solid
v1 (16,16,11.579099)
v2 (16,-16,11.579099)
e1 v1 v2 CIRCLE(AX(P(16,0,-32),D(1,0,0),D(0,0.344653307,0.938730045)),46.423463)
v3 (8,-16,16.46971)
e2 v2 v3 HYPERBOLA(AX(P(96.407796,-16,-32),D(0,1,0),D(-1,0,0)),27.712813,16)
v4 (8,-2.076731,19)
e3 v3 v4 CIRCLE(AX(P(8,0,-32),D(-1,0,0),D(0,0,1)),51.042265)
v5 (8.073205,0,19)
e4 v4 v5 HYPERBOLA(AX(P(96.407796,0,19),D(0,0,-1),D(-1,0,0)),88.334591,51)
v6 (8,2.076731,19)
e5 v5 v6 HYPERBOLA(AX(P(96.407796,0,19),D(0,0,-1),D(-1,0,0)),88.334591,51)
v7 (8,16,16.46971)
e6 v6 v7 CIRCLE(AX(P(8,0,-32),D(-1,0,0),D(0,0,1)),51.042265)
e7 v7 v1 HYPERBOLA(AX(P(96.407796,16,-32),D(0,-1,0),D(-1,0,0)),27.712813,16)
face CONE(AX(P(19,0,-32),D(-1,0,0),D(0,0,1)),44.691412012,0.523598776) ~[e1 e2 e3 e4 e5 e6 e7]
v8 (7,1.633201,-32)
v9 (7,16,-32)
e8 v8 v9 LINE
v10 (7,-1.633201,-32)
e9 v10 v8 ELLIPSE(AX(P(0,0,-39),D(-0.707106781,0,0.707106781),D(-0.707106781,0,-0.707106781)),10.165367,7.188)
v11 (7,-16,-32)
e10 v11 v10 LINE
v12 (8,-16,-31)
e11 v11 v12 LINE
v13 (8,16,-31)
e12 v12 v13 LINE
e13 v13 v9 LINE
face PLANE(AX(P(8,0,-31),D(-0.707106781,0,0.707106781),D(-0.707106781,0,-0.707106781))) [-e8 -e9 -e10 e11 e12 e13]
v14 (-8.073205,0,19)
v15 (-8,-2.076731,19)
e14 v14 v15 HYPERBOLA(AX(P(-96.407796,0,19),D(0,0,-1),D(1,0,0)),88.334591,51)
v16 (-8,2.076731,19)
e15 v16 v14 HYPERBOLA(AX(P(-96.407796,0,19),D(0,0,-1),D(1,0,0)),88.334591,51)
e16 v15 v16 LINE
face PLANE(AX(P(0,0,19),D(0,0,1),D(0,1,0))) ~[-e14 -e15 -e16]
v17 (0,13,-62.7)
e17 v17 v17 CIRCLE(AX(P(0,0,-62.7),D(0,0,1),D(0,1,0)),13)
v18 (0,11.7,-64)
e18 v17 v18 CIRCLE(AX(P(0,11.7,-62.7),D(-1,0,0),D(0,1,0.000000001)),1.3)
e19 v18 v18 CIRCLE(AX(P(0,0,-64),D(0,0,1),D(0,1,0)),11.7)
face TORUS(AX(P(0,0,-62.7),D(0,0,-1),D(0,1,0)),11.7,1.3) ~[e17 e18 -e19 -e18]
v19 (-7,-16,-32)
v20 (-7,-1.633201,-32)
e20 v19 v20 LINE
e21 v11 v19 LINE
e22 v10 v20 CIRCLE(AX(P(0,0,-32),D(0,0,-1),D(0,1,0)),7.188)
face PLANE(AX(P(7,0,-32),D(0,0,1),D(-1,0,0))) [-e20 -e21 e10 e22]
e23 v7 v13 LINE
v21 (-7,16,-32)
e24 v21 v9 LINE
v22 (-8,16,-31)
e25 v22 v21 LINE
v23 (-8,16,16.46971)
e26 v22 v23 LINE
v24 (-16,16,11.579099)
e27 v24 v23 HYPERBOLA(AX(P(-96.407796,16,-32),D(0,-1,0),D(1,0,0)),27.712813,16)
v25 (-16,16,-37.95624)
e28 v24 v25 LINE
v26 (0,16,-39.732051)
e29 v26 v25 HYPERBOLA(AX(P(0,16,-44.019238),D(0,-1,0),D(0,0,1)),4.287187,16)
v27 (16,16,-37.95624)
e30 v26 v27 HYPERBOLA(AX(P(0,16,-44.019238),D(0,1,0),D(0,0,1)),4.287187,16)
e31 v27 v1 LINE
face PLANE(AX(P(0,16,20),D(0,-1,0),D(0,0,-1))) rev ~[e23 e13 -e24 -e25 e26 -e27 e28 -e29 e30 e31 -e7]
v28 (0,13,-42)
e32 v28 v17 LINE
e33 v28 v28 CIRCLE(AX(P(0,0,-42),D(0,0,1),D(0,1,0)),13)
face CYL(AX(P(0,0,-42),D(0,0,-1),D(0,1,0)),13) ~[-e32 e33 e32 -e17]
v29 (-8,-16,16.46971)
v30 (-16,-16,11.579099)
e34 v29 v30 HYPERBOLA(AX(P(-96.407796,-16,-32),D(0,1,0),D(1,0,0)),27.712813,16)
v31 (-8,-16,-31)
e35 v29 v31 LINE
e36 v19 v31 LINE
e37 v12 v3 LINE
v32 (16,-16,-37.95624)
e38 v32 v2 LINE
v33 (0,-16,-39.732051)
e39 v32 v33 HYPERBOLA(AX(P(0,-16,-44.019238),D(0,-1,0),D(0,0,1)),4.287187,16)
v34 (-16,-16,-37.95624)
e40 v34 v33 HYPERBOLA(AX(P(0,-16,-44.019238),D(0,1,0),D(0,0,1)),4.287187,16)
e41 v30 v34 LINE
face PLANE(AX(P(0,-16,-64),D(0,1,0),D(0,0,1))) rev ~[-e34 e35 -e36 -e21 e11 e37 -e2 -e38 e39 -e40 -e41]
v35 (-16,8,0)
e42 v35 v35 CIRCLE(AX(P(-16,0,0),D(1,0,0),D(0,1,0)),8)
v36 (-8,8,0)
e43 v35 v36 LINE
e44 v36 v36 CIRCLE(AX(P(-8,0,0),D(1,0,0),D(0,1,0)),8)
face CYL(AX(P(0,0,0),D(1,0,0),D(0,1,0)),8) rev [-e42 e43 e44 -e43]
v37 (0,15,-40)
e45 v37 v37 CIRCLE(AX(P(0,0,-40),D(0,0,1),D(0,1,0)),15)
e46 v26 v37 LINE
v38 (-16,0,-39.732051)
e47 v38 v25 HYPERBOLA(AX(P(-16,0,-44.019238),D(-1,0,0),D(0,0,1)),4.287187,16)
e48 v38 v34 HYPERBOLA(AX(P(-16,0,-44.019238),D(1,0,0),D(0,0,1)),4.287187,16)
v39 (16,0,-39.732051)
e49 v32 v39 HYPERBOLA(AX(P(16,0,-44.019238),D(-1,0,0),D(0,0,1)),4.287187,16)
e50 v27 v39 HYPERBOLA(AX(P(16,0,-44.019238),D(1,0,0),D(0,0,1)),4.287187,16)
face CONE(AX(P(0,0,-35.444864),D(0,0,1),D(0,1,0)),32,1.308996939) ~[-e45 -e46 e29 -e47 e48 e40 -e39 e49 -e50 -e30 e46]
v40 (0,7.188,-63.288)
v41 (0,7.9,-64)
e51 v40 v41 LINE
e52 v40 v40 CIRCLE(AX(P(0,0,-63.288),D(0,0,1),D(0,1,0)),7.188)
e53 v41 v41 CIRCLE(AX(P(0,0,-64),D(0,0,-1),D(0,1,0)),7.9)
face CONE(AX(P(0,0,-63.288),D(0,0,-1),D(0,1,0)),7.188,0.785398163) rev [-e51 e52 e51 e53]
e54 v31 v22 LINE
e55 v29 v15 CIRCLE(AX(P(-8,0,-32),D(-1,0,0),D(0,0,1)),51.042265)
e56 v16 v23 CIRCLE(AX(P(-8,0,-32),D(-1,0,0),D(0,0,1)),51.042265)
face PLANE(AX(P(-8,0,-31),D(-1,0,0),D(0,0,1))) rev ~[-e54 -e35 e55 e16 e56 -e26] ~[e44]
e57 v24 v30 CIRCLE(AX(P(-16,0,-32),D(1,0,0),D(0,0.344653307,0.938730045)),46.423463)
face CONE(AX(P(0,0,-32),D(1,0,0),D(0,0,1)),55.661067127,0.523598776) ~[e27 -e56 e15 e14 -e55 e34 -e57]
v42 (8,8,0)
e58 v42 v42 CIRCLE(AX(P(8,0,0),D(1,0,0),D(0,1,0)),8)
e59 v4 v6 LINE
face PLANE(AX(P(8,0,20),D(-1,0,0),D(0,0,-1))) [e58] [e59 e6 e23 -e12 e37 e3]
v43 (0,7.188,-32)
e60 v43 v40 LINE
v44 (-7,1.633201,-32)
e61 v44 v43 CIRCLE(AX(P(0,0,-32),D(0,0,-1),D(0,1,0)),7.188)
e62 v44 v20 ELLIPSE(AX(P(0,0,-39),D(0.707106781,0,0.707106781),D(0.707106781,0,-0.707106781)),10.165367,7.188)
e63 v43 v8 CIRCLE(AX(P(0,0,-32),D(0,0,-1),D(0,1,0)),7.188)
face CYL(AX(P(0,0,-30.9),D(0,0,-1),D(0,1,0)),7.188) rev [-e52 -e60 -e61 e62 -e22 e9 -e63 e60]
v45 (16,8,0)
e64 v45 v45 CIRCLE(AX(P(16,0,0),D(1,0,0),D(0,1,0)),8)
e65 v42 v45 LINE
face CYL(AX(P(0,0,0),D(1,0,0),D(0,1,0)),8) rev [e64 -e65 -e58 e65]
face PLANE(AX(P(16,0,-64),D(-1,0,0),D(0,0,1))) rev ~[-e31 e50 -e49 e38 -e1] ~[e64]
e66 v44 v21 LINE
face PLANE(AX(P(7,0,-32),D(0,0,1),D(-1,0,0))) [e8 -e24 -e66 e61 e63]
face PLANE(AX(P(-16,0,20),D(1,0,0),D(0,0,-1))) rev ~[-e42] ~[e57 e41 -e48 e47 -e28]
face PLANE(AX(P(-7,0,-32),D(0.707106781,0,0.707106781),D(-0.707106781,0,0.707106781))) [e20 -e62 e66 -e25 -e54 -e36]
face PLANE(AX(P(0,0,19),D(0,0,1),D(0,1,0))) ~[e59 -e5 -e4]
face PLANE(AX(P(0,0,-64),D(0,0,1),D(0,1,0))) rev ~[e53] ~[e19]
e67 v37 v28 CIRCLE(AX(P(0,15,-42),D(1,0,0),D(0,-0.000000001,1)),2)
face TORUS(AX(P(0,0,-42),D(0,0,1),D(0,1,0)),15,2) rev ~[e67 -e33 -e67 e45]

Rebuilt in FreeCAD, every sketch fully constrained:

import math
import FreeCAD as App
import Part
import Sketcher
Q = App.Units.Quantity

doc = App.newDocument("Part")
body = doc.addObject("PartDesign::Body", "Body")

sketch1 = body.newObject("Sketcher::SketchObject", "Sketch")
sketch1.AttachmentSupport = (doc.getObject("YZ_Plane"), [""])
sketch1.MapMode = "FlatFace"
sketch1.addGeometry(Part.LineSegment(App.Vector(32, 19, 0), App.Vector(0, 19, 0)), False)
sketch1.addGeometry(Part.LineSegment(App.Vector(0, 19, 0), App.Vector(0, -64, 0)), False)
sketch1.addGeometry(Part.LineSegment(App.Vector(0, -64, 0), App.Vector(11.7, -64, 0)), False)
sketch1.addGeometry(Part.ArcOfCircle(Part.Circle(App.Vector(11.7, -62.7, 0), App.Vector(0, 0, 1), 1.3), math.radians(-90), math.radians(0)), False)
sketch1.addGeometry(Part.LineSegment(App.Vector(13, -62.7, 0), App.Vector(13, -42, 0)), False)
sketch1.addGeometry(Part.ArcOfCircle(Part.Circle(App.Vector(15, -42, 0), App.Vector(0, 0, 1), 2), math.radians(90), math.radians(180)), False)
sketch1.addGeometry(Part.LineSegment(App.Vector(15, -40, 0), App.Vector(32, -35.444864, 0)), False)
sketch1.addGeometry(Part.LineSegment(App.Vector(32, -35.444864, 0), App.Vector(32, 19, 0)), False)
sketch1.addConstraint(Sketcher.Constraint("Coincident", 0, 2, 1, 1))
sketch1.addConstraint(Sketcher.Constraint("Coincident", 1, 2, 2, 1))
sketch1.addConstraint(Sketcher.Constraint("Tangent", 2, 2, 3, 1))
sketch1.addConstraint(Sketcher.Constraint("Tangent", 3, 2, 4, 1))
sketch1.addConstraint(Sketcher.Constraint("Tangent", 4, 2, 5, 2))
sketch1.addConstraint(Sketcher.Constraint("Coincident", 5, 1, 6, 1))
sketch1.addConstraint(Sketcher.Constraint("Coincident", 6, 2, 7, 1))
sketch1.addConstraint(Sketcher.Constraint("Coincident", 7, 2, 0, 1))
sketch1.addConstraint(Sketcher.Constraint("Horizontal", 0))
sketch1.addConstraint(Sketcher.Constraint("Vertical", 1))
sketch1.addConstraint(Sketcher.Constraint("Horizontal", 2))
sketch1.addConstraint(Sketcher.Constraint("Vertical", 4))
sketch1.addConstraint(Sketcher.Constraint("Vertical", 7))
sketch1.addConstraint(Sketcher.Constraint("PointOnObject", 0, 2, -2))
sketch1.addConstraint(Sketcher.Constraint("Radius", 5, 2.0))
sketch1.addConstraint(Sketcher.Constraint("Radius", 3, 1.3))
sketch1.addConstraint(Sketcher.Constraint("DistanceX", 0, 2, 0, 1, 32.0))
sketch1.addConstraint(Sketcher.Constraint("DistanceY", 1, 2, 1, 1, 83.0))
sketch1.addConstraint(Sketcher.Constraint("Angle", 6, Q("15 deg")))
sketch1.addConstraint(Sketcher.Constraint("DistanceX", 2, 1, 2, 2, 11.7))
sketch1.addConstraint(Sketcher.Constraint("DistanceY", 4, 1, 4, 2, 20.7))
sketch1.addConstraint(Sketcher.Constraint("DistanceY", 5, 3, -1, 1, 42.0))
sketch1.addConstraint(Sketcher.Constraint("DistanceX", -1, 1, 5, 1, 15.0))
revolution = body.newObject("PartDesign::Revolution", "Revolution")
revolution.Profile = sketch1
revolution.ReferenceAxis = (sketch1, ["V_Axis"])
revolution.Angle = 360

sketch2 = body.newObject("Sketcher::SketchObject", "Sketch001")
sketch2.AttachmentSupport = (doc.getObject("XZ_Plane"), [""])
sketch2.MapMode = "FlatFace"
sketch2.addGeometry(Part.LineSegment(App.Vector(-8, -31, 0), App.Vector(-8, 20, 0)), False)
sketch2.addGeometry(Part.LineSegment(App.Vector(-8, 20, 0), App.Vector(8, 20, 0)), False)
sketch2.addGeometry(Part.LineSegment(App.Vector(8, 20, 0), App.Vector(8, -31, 0)), False)
sketch2.addGeometry(Part.LineSegment(App.Vector(8, -31, 0), App.Vector(7, -32, 0)), False)
sketch2.addGeometry(Part.LineSegment(App.Vector(7, -32, 0), App.Vector(-7, -32, 0)), False)
sketch2.addGeometry(Part.LineSegment(App.Vector(-7, -32, 0), App.Vector(-8, -31, 0)), False)
sketch2.addConstraint(Sketcher.Constraint("Coincident", 0, 2, 1, 1))
sketch2.addConstraint(Sketcher.Constraint("Coincident", 1, 2, 2, 1))
sketch2.addConstraint(Sketcher.Constraint("Coincident", 2, 2, 3, 1))
sketch2.addConstraint(Sketcher.Constraint("Coincident", 3, 2, 4, 1))
sketch2.addConstraint(Sketcher.Constraint("Coincident", 4, 2, 5, 1))
sketch2.addConstraint(Sketcher.Constraint("Coincident", 5, 2, 0, 1))
sketch2.addConstraint(Sketcher.Constraint("Vertical", 0))
sketch2.addConstraint(Sketcher.Constraint("Horizontal", 1))
sketch2.addConstraint(Sketcher.Constraint("Vertical", 2))
sketch2.addConstraint(Sketcher.Constraint("Horizontal", 4))
sketch2.addConstraint(Sketcher.Constraint("Symmetric", 2, 2, 5, 2, -2))
sketch2.addConstraint(Sketcher.Constraint("Perpendicular", 3, 5))
sketch2.addConstraint(Sketcher.Constraint("Equal", 3, 5))
sketch2.addConstraint(Sketcher.Constraint("DistanceX", 1, 1, 1, 2, 16.0))
sketch2.addConstraint(Sketcher.Constraint("DistanceX", 4, 2, 4, 1, 14.0))
sketch2.addConstraint(Sketcher.Constraint("DistanceY", 0, 1, 0, 2, 51.0))
sketch2.addConstraint(Sketcher.Constraint("DistanceY", -1, 1, 0, 2, 20.0))
pocket1 = body.newObject("PartDesign::Pocket", "Pocket")
pocket1.Profile = sketch2
pocket1.Type = "ThroughAll"
pocket1.Midplane = True

sketch3 = body.newObject("Sketcher::SketchObject", "Sketch002")
sketch3.AttachmentSupport = (doc.getObject("YZ_Plane"), [""])
sketch3.MapMode = "FlatFace"
sketch3.addGeometry(Part.LineSegment(App.Vector(-48, 52, 0), App.Vector(-48, -64, 0)), False)
sketch3.addGeometry(Part.LineSegment(App.Vector(-48, -64, 0), App.Vector(-16, -64, 0)), False)
sketch3.addGeometry(Part.LineSegment(App.Vector(-16, -64, 0), App.Vector(-16, 20, 0)), False)
sketch3.addGeometry(Part.LineSegment(App.Vector(-16, 20, 0), App.Vector(16, 20, 0)), False)
sketch3.addGeometry(Part.LineSegment(App.Vector(16, 20, 0), App.Vector(16, -64, 0)), False)
sketch3.addGeometry(Part.LineSegment(App.Vector(16, -64, 0), App.Vector(48, -64, 0)), False)
sketch3.addGeometry(Part.LineSegment(App.Vector(48, -64, 0), App.Vector(48, 52, 0)), False)
sketch3.addGeometry(Part.LineSegment(App.Vector(48, 52, 0), App.Vector(-48, 52, 0)), False)
sketch3.addConstraint(Sketcher.Constraint("Coincident", 0, 2, 1, 1))
sketch3.addConstraint(Sketcher.Constraint("Coincident", 1, 2, 2, 1))
sketch3.addConstraint(Sketcher.Constraint("Coincident", 2, 2, 3, 1))
sketch3.addConstraint(Sketcher.Constraint("Coincident", 3, 2, 4, 1))
sketch3.addConstraint(Sketcher.Constraint("Coincident", 4, 2, 5, 1))
sketch3.addConstraint(Sketcher.Constraint("Coincident", 5, 2, 6, 1))
sketch3.addConstraint(Sketcher.Constraint("Coincident", 6, 2, 7, 1))
sketch3.addConstraint(Sketcher.Constraint("Coincident", 7, 2, 0, 1))
sketch3.addConstraint(Sketcher.Constraint("Vertical", 0))
sketch3.addConstraint(Sketcher.Constraint("Horizontal", 1))
sketch3.addConstraint(Sketcher.Constraint("Vertical", 2))
sketch3.addConstraint(Sketcher.Constraint("Horizontal", 3))
sketch3.addConstraint(Sketcher.Constraint("Vertical", 4))
sketch3.addConstraint(Sketcher.Constraint("Horizontal", 5))
sketch3.addConstraint(Sketcher.Constraint("Vertical", 6))
sketch3.addConstraint(Sketcher.Constraint("Horizontal", 7))
sketch3.addConstraint(Sketcher.Constraint("Symmetric", 1, 2, 4, 2, -2))
sketch3.addConstraint(Sketcher.Constraint("Equal", 1, 3))
sketch3.addConstraint(Sketcher.Constraint("Equal", 3, 5))
sketch3.addConstraint(Sketcher.Constraint("DistanceX", 1, 1, 1, 2, 32.0))
sketch3.addConstraint(Sketcher.Constraint("DistanceY", 0, 2, 0, 1, 116.0))
sketch3.addConstraint(Sketcher.Constraint("DistanceY", 2, 1, 2, 2, 84.0))
sketch3.addConstraint(Sketcher.Constraint("DistanceY", 0, 2, -1, 1, 64.0))
pocket2 = body.newObject("PartDesign::Pocket", "Pocket001")
pocket2.Profile = sketch3
pocket2.Type = "ThroughAll"
pocket2.Midplane = True

sketch4 = body.newObject("Sketcher::SketchObject", "Sketch003")
sketch4.AttachmentSupport = (doc.getObject("XZ_Plane"), [""])
sketch4.MapMode = "FlatFace"
sketch4.addGeometry(Part.LineSegment(App.Vector(-48, 52, 0), App.Vector(48, 52, 0)), False)
sketch4.addGeometry(Part.LineSegment(App.Vector(48, 52, 0), App.Vector(48, -64, 0)), False)
sketch4.addGeometry(Part.LineSegment(App.Vector(48, -64, 0), App.Vector(16, -64, 0)), False)
sketch4.addGeometry(Part.LineSegment(App.Vector(16, -64, 0), App.Vector(16, 20, 0)), False)
sketch4.addGeometry(Part.LineSegment(App.Vector(16, 20, 0), App.Vector(-16, 20, 0)), False)
sketch4.addGeometry(Part.LineSegment(App.Vector(-16, 20, 0), App.Vector(-16, -64, 0)), False)
sketch4.addGeometry(Part.LineSegment(App.Vector(-16, -64, 0), App.Vector(-48, -64, 0)), False)
sketch4.addGeometry(Part.LineSegment(App.Vector(-48, -64, 0), App.Vector(-48, 52, 0)), False)
sketch4.addConstraint(Sketcher.Constraint("Coincident", 0, 2, 1, 1))
sketch4.addConstraint(Sketcher.Constraint("Coincident", 1, 2, 2, 1))
sketch4.addConstraint(Sketcher.Constraint("Coincident", 2, 2, 3, 1))
sketch4.addConstraint(Sketcher.Constraint("Coincident", 3, 2, 4, 1))
sketch4.addConstraint(Sketcher.Constraint("Coincident", 4, 2, 5, 1))
sketch4.addConstraint(Sketcher.Constraint("Coincident", 5, 2, 6, 1))
sketch4.addConstraint(Sketcher.Constraint("Coincident", 6, 2, 7, 1))
sketch4.addConstraint(Sketcher.Constraint("Coincident", 7, 2, 0, 1))
sketch4.addConstraint(Sketcher.Constraint("Horizontal", 0))
sketch4.addConstraint(Sketcher.Constraint("Vertical", 1))
sketch4.addConstraint(Sketcher.Constraint("Horizontal", 2))
sketch4.addConstraint(Sketcher.Constraint("Vertical", 3))
sketch4.addConstraint(Sketcher.Constraint("Horizontal", 4))
sketch4.addConstraint(Sketcher.Constraint("Vertical", 5))
sketch4.addConstraint(Sketcher.Constraint("Horizontal", 6))
sketch4.addConstraint(Sketcher.Constraint("Vertical", 7))
sketch4.addConstraint(Sketcher.Constraint("Symmetric", 2, 2, 5, 2, -2))
sketch4.addConstraint(Sketcher.Constraint("Equal", 2, 4))
sketch4.addConstraint(Sketcher.Constraint("Equal", 4, 6))
sketch4.addConstraint(Sketcher.Constraint("DistanceX", 0, 1, 0, 2, 96.0))
sketch4.addConstraint(Sketcher.Constraint("DistanceY", 1, 2, 1, 1, 116.0))
sketch4.addConstraint(Sketcher.Constraint("DistanceY", 3, 1, 3, 2, 84.0))
sketch4.addConstraint(Sketcher.Constraint("DistanceY", -1, 1, 0, 2, 52.0))
pocket3 = body.newObject("PartDesign::Pocket", "Pocket002")
pocket3.Profile = sketch4
pocket3.Type = "ThroughAll"
pocket3.Midplane = True

sketch5 = body.newObject("Sketcher::SketchObject", "Sketch004")
sketch5.AttachmentSupport = (doc.getObject("XY_Plane"), [""])
sketch5.MapMode = "FlatFace"
sketch5.addGeometry(Part.LineSegment(App.Vector(-19.75, 8, 0), App.Vector(-19.75, 0, 0)), False)
sketch5.addGeometry(Part.LineSegment(App.Vector(-19.75, 0, 0), App.Vector(19.75, 0, 0)), False)
sketch5.addGeometry(Part.LineSegment(App.Vector(19.75, 0, 0), App.Vector(19.75, 8, 0)), False)
sketch5.addGeometry(Part.LineSegment(App.Vector(19.75, 8, 0), App.Vector(-19.75, 8, 0)), False)
sketch5.addConstraint(Sketcher.Constraint("Coincident", 0, 2, 1, 1))
sketch5.addConstraint(Sketcher.Constraint("Coincident", 1, 2, 2, 1))
sketch5.addConstraint(Sketcher.Constraint("Coincident", 2, 2, 3, 1))
sketch5.addConstraint(Sketcher.Constraint("Coincident", 3, 2, 0, 1))
sketch5.addConstraint(Sketcher.Constraint("Vertical", 0))
sketch5.addConstraint(Sketcher.Constraint("Horizontal", 1))
sketch5.addConstraint(Sketcher.Constraint("Vertical", 2))
sketch5.addConstraint(Sketcher.Constraint("Horizontal", 3))
sketch5.addConstraint(Sketcher.Constraint("Symmetric", 0, 2, 1, 2, -1, 1))
sketch5.addConstraint(Sketcher.Constraint("DistanceY", 0, 2, 0, 1, 8.0))
sketch5.addConstraint(Sketcher.Constraint("DistanceX", 1, 1, 1, 2, 39.5))
groove = body.newObject("PartDesign::Groove", "Groove")
groove.Profile = sketch5
groove.ReferenceAxis = (sketch5, ["H_Axis"])
groove.Angle = 360

sketch6 = body.newObject("Sketcher::SketchObject", "Sketch005")
sketch6.AttachmentSupport = (doc.getObject("YZ_Plane"), [""])
sketch6.MapMode = "FlatFace"
sketch6.addGeometry(Part.LineSegment(App.Vector(7.188, -30.9, 0), App.Vector(0, -30.9, 0)), False)
sketch6.addGeometry(Part.LineSegment(App.Vector(0, -30.9, 0), App.Vector(0, -64.1, 0)), False)
sketch6.addGeometry(Part.LineSegment(App.Vector(0, -64.1, 0), App.Vector(8, -64.1, 0)), False)
sketch6.addGeometry(Part.LineSegment(App.Vector(8, -64.1, 0), App.Vector(7.188, -63.288, 0)), False)
sketch6.addGeometry(Part.LineSegment(App.Vector(7.188, -63.288, 0), App.Vector(7.188, -30.9, 0)), False)
sketch6.addConstraint(Sketcher.Constraint("Coincident", 0, 2, 1, 1))
sketch6.addConstraint(Sketcher.Constraint("Coincident", 1, 2, 2, 1))
sketch6.addConstraint(Sketcher.Constraint("Coincident", 2, 2, 3, 1))
sketch6.addConstraint(Sketcher.Constraint("Coincident", 3, 2, 4, 1))
sketch6.addConstraint(Sketcher.Constraint("Coincident", 4, 2, 0, 1))
sketch6.addConstraint(Sketcher.Constraint("Horizontal", 0))
sketch6.addConstraint(Sketcher.Constraint("Vertical", 1))
sketch6.addConstraint(Sketcher.Constraint("Horizontal", 2))
sketch6.addConstraint(Sketcher.Constraint("Vertical", 4))
sketch6.addConstraint(Sketcher.Constraint("PointOnObject", 0, 2, -2))
sketch6.addConstraint(Sketcher.Constraint("DistanceX", 2, 1, 2, 2, 8.0))
sketch6.addConstraint(Sketcher.Constraint("Angle", 3, Q("135 deg")))
sketch6.addConstraint(Sketcher.Constraint("DistanceY", 1, 2, 1, 1, 33.2))
sketch6.addConstraint(Sketcher.Constraint("DistanceY", 0, 2, -1, 1, 30.9))
sketch6.addConstraint(Sketcher.Constraint("DistanceX", 0, 2, 0, 1, 7.188))
groove2 = body.newObject("PartDesign::Groove", "Groove001")
groove2.Profile = sketch6
groove2.ReferenceAxis = (sketch6, ["V_Axis"])
groove2.Angle = 360

sketch7 = body.newObject("Sketcher::SketchObject", "Sketch006")
sketch7.AttachmentSupport = (doc.getObject("XZ_Plane"), [""])
sketch7.MapMode = "FlatFace"
sketch7.addGeometry(Part.LineSegment(App.Vector(-19, 49.641829, 0), App.Vector(0, 60.611484, 0)), False)
sketch7.addGeometry(Part.LineSegment(App.Vector(0, 60.611484, 0), App.Vector(19, 49.641829, 0)), False)
sketch7.addGeometry(Part.LineSegment(App.Vector(19, 49.641829, 0), App.Vector(19, 12.691412, 0)), False)
sketch7.addGeometry(Part.LineSegment(App.Vector(19, 12.691412, 0), App.Vector(0, 23.661067, 0)), False)
sketch7.addGeometry(Part.LineSegment(App.Vector(0, 23.661067, 0), App.Vector(-19, 12.691412, 0)), False)
sketch7.addGeometry(Part.LineSegment(App.Vector(-19, 12.691412, 0), App.Vector(-19, 49.641829, 0)), False)
sketch7.addGeometry(Part.LineSegment(App.Vector(-19, -32, 0), App.Vector(19, -32, 0)), True)
sketch7.addConstraint(Sketcher.Constraint("Coincident", 0, 2, 1, 1))
sketch7.addConstraint(Sketcher.Constraint("Coincident", 1, 2, 2, 1))
sketch7.addConstraint(Sketcher.Constraint("Coincident", 2, 2, 3, 1))
sketch7.addConstraint(Sketcher.Constraint("Coincident", 3, 2, 4, 1))
sketch7.addConstraint(Sketcher.Constraint("Coincident", 4, 2, 5, 1))
sketch7.addConstraint(Sketcher.Constraint("Coincident", 5, 2, 0, 1))
sketch7.addConstraint(Sketcher.Constraint("Vertical", 2))
sketch7.addConstraint(Sketcher.Constraint("Vertical", 5))
sketch7.addConstraint(Sketcher.Constraint("Horizontal", 6))
sketch7.addConstraint(Sketcher.Constraint("Symmetric", 2, 2, 4, 2, -2))
sketch7.addConstraint(Sketcher.Constraint("PointOnObject", 0, 2, -2))
sketch7.addConstraint(Sketcher.Constraint("PointOnObject", 3, 2, -2))
sketch7.addConstraint(Sketcher.Constraint("Parallel", 1, 3))
sketch7.addConstraint(Sketcher.Constraint("Parallel", 0, 4))
sketch7.addConstraint(Sketcher.Constraint("Vertical", 5, 2, 6, 1))
sketch7.addConstraint(Sketcher.Constraint("Vertical", 2, 2, 6, 2))
sketch7.addConstraint(Sketcher.Constraint("DistanceX", 6, 1, 6, 2, 38.0))
sketch7.addConstraint(Sketcher.Constraint("Angle", 0, Q("30 deg")))
sketch7.addConstraint(Sketcher.Constraint("DistanceY", 6, 1, -1, 1, 32.0))
sketch7.addConstraint(Sketcher.Constraint("DistanceY", 2, 2, 2, 1, 36.950417))
sketch7.addConstraint(Sketcher.Constraint("DistanceY", -1, 1, 1, 2, 49.641829))
groove3 = body.newObject("PartDesign::Groove", "Groove002")
groove3.Profile = sketch7
groove3.ReferenceAxis = (sketch7, ["Axis0"])
groove3.Angle = 90

sketch8 = body.newObject("Sketcher::SketchObject", "Sketch007")
sketch8.AttachmentSupport = (doc.getObject("XZ_Plane"), [""])
sketch8.MapMode = "FlatFace"
sketch8.addGeometry(Part.LineSegment(App.Vector(-19, 49.641829, 0), App.Vector(0, 60.611484, 0)), False)
sketch8.addGeometry(Part.LineSegment(App.Vector(0, 60.611484, 0), App.Vector(19, 49.641829, 0)), False)
sketch8.addGeometry(Part.LineSegment(App.Vector(19, 49.641829, 0), App.Vector(19, 12.691412, 0)), False)
sketch8.addGeometry(Part.LineSegment(App.Vector(19, 12.691412, 0), App.Vector(0, 23.661067, 0)), False)
sketch8.addGeometry(Part.LineSegment(App.Vector(0, 23.661067, 0), App.Vector(-19, 12.691412, 0)), False)
sketch8.addGeometry(Part.LineSegment(App.Vector(-19, 12.691412, 0), App.Vector(-19, 49.641829, 0)), False)
sketch8.addGeometry(Part.LineSegment(App.Vector(19, -32, 0), App.Vector(-19, -32, 0)), True)
sketch8.addConstraint(Sketcher.Constraint("Coincident", 0, 2, 1, 1))
sketch8.addConstraint(Sketcher.Constraint("Coincident", 1, 2, 2, 1))
sketch8.addConstraint(Sketcher.Constraint("Coincident", 2, 2, 3, 1))
sketch8.addConstraint(Sketcher.Constraint("Coincident", 3, 2, 4, 1))
sketch8.addConstraint(Sketcher.Constraint("Coincident", 4, 2, 5, 1))
sketch8.addConstraint(Sketcher.Constraint("Coincident", 5, 2, 0, 1))
sketch8.addConstraint(Sketcher.Constraint("Vertical", 2))
sketch8.addConstraint(Sketcher.Constraint("Vertical", 5))
sketch8.addConstraint(Sketcher.Constraint("Horizontal", 6))
sketch8.addConstraint(Sketcher.Constraint("Symmetric", 2, 2, 4, 2, -2))
sketch8.addConstraint(Sketcher.Constraint("PointOnObject", 0, 2, -2))
sketch8.addConstraint(Sketcher.Constraint("PointOnObject", 3, 2, -2))
sketch8.addConstraint(Sketcher.Constraint("Parallel", 1, 3))
sketch8.addConstraint(Sketcher.Constraint("Parallel", 0, 4))
sketch8.addConstraint(Sketcher.Constraint("Vertical", 2, 2, 6, 1))
sketch8.addConstraint(Sketcher.Constraint("Vertical", 5, 2, 6, 2))
sketch8.addConstraint(Sketcher.Constraint("DistanceX", 6, 2, 6, 1, 38.0))
sketch8.addConstraint(Sketcher.Constraint("Angle", 0, Q("30 deg")))
sketch8.addConstraint(Sketcher.Constraint("DistanceY", 6, 1, -1, 1, 32.0))
sketch8.addConstraint(Sketcher.Constraint("DistanceY", 2, 2, 2, 1, 36.950417))
sketch8.addConstraint(Sketcher.Constraint("DistanceY", -1, 1, 1, 2, 49.641829))
groove4 = body.newObject("PartDesign::Groove", "Groove003")
groove4.Profile = sketch8
groove4.ReferenceAxis = (sketch8, ["Axis0"])
groove4.Angle = 90

doc.recompute()
